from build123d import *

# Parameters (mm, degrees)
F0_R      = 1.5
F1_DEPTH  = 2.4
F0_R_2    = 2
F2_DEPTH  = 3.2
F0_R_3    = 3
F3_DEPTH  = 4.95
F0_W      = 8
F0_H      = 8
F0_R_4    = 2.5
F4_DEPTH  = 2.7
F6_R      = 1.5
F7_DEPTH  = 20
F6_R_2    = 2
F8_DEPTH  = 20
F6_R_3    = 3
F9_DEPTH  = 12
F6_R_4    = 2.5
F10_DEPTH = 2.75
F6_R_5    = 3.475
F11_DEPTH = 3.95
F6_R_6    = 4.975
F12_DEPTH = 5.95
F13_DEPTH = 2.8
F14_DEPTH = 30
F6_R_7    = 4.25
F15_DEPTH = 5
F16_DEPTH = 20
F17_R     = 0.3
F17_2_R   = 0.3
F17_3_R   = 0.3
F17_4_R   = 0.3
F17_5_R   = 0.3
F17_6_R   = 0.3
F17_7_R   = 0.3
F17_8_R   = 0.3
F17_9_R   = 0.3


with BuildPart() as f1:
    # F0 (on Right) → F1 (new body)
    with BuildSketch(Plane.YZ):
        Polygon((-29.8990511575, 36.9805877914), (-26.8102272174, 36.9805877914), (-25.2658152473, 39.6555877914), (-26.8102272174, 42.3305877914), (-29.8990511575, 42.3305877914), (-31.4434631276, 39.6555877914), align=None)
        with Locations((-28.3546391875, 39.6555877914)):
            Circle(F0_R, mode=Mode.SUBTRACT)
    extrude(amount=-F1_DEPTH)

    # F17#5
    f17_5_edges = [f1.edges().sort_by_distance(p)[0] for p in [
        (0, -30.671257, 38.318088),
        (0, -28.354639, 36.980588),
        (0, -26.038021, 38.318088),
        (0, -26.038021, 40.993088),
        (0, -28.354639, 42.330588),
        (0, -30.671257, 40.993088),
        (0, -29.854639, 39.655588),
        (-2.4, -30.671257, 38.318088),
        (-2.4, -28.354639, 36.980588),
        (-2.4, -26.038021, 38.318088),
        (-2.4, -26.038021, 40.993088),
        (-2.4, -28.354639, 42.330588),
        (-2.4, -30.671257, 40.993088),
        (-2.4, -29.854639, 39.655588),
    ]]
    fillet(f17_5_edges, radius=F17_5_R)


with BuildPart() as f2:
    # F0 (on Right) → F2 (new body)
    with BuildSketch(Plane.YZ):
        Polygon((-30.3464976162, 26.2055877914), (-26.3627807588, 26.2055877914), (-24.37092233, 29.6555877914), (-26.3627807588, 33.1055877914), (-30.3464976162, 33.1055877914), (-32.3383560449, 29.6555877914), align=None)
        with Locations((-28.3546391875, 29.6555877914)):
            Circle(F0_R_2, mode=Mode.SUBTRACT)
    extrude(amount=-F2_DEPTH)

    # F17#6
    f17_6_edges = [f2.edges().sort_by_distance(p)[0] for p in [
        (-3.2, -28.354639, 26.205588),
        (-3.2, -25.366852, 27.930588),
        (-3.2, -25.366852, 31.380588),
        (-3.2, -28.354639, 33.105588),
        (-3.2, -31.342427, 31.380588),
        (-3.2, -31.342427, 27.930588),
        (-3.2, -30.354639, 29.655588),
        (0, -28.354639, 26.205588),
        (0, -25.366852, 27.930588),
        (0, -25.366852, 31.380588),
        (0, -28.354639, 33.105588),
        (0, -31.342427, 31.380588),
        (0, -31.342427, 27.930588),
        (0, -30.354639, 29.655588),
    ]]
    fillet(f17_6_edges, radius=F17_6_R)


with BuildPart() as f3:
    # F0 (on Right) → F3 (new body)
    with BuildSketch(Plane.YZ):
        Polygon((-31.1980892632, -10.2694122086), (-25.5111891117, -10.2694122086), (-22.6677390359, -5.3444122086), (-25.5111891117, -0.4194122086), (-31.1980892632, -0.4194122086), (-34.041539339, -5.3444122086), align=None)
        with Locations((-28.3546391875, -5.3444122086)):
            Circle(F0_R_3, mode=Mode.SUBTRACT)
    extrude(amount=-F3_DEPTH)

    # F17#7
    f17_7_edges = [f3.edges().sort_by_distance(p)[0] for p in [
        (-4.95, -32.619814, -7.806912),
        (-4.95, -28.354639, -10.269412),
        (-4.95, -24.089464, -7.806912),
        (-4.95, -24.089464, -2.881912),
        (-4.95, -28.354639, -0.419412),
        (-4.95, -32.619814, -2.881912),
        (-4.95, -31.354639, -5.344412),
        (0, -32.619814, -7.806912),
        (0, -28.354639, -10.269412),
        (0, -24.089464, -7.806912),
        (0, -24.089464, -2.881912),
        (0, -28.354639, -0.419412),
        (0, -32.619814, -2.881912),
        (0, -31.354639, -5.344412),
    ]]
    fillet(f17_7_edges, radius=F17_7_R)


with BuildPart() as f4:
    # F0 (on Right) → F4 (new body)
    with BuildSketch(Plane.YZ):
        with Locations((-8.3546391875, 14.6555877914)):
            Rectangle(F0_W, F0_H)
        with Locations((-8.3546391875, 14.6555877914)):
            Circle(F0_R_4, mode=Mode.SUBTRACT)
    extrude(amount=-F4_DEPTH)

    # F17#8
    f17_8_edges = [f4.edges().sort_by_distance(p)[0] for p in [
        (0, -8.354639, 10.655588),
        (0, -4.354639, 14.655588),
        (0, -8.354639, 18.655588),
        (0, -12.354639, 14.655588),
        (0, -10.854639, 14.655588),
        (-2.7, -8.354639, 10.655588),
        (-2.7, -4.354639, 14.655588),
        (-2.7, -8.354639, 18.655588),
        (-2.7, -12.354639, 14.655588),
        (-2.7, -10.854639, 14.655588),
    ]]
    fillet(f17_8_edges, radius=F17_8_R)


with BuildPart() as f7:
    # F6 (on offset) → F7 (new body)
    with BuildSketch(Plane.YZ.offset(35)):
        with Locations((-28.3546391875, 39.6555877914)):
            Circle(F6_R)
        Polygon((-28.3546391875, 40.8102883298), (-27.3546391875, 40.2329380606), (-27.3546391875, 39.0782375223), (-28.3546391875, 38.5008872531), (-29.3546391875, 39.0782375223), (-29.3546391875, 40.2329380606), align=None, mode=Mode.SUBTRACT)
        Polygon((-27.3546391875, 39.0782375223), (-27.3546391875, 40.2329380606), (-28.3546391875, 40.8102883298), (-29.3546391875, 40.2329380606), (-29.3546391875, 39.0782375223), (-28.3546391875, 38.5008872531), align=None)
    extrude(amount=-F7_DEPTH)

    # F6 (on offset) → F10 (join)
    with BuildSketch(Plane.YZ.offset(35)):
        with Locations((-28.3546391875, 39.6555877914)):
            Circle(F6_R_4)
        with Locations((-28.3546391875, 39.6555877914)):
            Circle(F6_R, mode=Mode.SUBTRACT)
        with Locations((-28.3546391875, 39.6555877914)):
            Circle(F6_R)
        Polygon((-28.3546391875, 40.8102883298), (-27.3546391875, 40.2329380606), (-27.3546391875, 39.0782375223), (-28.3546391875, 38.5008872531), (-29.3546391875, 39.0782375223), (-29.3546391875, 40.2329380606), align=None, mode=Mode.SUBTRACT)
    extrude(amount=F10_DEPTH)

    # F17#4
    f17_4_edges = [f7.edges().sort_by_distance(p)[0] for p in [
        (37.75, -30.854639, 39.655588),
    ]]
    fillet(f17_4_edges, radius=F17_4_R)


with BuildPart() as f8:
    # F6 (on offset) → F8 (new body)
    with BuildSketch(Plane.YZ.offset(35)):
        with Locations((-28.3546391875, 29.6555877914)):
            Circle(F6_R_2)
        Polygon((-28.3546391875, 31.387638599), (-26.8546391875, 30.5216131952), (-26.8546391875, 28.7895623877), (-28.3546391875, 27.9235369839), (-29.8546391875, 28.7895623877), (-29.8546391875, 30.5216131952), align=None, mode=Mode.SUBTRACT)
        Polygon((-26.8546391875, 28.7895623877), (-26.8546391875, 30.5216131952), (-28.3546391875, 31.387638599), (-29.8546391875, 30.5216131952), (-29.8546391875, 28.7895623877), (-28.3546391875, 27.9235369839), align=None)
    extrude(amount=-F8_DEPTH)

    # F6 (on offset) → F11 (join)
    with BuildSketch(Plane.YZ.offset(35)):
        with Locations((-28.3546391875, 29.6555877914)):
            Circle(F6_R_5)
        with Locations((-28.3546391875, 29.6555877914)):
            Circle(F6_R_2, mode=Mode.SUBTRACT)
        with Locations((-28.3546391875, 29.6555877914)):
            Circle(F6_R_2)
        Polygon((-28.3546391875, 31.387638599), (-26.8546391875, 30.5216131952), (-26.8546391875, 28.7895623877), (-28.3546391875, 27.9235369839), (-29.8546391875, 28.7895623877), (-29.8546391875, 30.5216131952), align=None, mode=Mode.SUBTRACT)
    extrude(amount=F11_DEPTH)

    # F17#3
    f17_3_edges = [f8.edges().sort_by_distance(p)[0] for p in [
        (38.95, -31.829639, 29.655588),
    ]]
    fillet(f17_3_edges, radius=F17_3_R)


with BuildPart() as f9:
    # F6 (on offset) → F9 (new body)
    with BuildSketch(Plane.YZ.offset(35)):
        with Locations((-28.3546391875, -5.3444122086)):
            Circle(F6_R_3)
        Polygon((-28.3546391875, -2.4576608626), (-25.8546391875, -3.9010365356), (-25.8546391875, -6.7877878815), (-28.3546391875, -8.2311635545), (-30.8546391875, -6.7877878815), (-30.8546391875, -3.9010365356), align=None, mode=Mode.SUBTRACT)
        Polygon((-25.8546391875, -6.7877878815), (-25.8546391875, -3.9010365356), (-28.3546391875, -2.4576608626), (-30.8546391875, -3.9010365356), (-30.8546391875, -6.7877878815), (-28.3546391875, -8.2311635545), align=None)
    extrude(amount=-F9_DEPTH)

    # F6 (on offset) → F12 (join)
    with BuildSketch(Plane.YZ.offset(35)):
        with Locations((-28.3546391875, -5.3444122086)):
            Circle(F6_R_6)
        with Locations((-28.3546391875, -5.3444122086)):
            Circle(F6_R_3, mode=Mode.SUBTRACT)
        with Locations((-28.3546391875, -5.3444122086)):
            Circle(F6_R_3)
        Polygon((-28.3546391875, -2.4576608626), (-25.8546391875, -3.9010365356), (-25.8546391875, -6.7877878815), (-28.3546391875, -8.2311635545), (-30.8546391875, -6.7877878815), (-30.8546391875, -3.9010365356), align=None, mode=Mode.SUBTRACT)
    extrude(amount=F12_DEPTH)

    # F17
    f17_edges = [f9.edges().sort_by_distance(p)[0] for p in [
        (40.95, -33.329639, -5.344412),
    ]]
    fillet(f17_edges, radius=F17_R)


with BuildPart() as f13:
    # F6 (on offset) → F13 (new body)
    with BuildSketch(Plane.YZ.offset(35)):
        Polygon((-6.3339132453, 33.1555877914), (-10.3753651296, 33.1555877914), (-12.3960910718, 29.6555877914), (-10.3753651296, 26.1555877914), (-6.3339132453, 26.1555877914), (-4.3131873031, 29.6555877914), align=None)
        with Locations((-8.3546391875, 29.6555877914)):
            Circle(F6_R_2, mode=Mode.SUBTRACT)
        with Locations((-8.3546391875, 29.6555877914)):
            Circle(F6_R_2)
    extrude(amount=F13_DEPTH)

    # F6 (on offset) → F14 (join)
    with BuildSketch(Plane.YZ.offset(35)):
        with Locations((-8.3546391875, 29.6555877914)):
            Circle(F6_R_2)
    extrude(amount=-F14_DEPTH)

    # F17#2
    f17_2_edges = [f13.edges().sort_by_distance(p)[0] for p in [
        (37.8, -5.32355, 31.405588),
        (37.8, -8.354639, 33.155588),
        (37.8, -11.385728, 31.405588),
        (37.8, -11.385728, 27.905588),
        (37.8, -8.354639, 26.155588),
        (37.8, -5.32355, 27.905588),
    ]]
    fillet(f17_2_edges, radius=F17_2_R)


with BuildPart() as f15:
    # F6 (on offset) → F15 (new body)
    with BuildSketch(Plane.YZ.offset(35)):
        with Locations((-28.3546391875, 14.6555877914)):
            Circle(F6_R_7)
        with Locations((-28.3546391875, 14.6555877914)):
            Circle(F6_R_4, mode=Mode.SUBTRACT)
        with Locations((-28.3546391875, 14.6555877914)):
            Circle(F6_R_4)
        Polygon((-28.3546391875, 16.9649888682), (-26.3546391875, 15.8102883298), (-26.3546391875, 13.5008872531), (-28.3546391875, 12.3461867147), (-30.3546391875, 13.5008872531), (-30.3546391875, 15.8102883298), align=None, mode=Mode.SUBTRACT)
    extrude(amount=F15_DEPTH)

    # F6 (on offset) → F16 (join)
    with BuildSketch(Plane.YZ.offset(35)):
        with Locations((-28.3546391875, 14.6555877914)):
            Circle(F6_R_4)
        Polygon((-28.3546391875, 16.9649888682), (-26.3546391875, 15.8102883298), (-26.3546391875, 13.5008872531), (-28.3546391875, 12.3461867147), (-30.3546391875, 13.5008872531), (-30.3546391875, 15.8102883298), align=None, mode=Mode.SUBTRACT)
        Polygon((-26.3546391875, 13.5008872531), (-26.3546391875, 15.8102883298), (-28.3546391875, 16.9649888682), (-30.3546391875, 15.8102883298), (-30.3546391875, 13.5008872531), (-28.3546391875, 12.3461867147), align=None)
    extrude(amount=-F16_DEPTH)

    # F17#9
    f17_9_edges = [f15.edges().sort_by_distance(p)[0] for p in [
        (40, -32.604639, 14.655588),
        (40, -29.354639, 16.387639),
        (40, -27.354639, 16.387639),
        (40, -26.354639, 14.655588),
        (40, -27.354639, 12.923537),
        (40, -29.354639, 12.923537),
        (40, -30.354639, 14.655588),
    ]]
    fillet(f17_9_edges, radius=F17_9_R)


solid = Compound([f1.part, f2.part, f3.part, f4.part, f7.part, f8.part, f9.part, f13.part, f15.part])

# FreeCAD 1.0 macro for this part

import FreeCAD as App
import Part
import Sketcher
Q = App.Units.Quantity


def edges_at(feature, points):
    """Names of the edges that pass closest to the given points."""
    edges = feature.Shape.Edges
    near = lambda p: min(range(len(edges)), key=lambda i: edges[i].distToShape(Part.Vertex(*p))[0])
    return sorted({f"Edge{near(p) + 1}" for p in points})


def add_polygon(sketch, points):
    """Adds a closed chain of lines whose ends are joined by coincident constraints."""
    first, n = sketch.GeometryCount, len(points)
    for a, b in zip(points, points[1:] + points[:1]):
        sketch.addGeometry(Part.LineSegment(App.Vector(*a, 0), App.Vector(*b, 0)), False)
    for i in range(n):
        sketch.addConstraint(Sketcher.Constraint("Coincident", first + i, 2, first + (i + 1) % n, 1))

doc = App.newDocument("Part")
body = doc.addObject("PartDesign::Body", "Body")

sketch1 = body.newObject("Sketcher::SketchObject", "Sketch")
sketch1.AttachmentSupport = (doc.getObject("YZ_Plane"), [""])
sketch1.MapMode = "FlatFace"
add_polygon(sketch1, [(-29.9, 37), (-26.8, 37), (-25.3, 39.7), (-26.8, 42.3), (-29.9, 42.3), (-31.4, 39.7)])
sketch1.addGeometry(Part.Circle(App.Vector(-28.4, 39.7, 0), App.Vector(0, 0, 1), 1.5), False)
sketch1.addConstraint([
    Sketcher.Constraint("Horizontal", 0),
    Sketcher.Constraint("Horizontal", 3),
    Sketcher.Constraint("Parallel", 1, 4),
    Sketcher.Constraint("Parallel", 2, 5),
    Sketcher.Constraint("Horizontal", 6, 3, 1, 2),
    Sketcher.Constraint("Horizontal", 1, 2, 4, 2),
    Sketcher.Constraint("Vertical", 0, 2, 2, 2),
    Sketcher.Constraint("Vertical", 3, 2, 5, 2),
    Sketcher.Constraint("Diameter", 6, Q("3 mm")),
    Sketcher.Constraint("Angle", 1, Q("60 deg")),
    Sketcher.Constraint("DistanceY", 0, 2, 2, 2, Q("5.35 mm")),
    Sketcher.Constraint("DistanceX", 0, 1, 0, 2, Q("3.088824 mm")),
    Sketcher.Constraint("DistanceX", 6, 3, -1, 1, Q("28.354639 mm")),
    Sketcher.Constraint("DistanceX", 3, 2, -1, 1, Q("29.899051 mm")),
    Sketcher.Constraint("DistanceY", -1, 1, 6, 3, Q("39.655588 mm")),
])
pad1 = body.newObject("PartDesign::Pad", "Pad")
pad1.Profile = sketch1
pad1.Length = 2.4
pad1.Reversed = True
doc.recompute()

fillet = body.newObject("PartDesign::Fillet", "Fillet")
fillet.Base = (pad1, edges_at(pad1, [
    (0, -30.671, 38.318),
    (0, -28.355, 36.981),
    (0, -26.038, 38.318),
    (0, -26.038, 40.993),
    (0, -28.355, 42.331),
    (0, -30.671, 40.993),
    (0, -29.855, 39.656),
    (-2.4, -30.671, 38.318),
    (-2.4, -28.355, 36.981),
    (-2.4, -26.038, 38.318),
    (-2.4, -26.038, 40.993),
    (-2.4, -28.355, 42.331),
    (-2.4, -30.671, 40.993),
    (-2.4, -29.855, 39.656),
]))
fillet.Radius = 0.3
body2 = doc.addObject("PartDesign::Body", "Body001")

sketch2 = body2.newObject("Sketcher::SketchObject", "Sketch001")
sketch2.AttachmentSupport = (doc.getObject("YZ_Plane001"), [""])
sketch2.MapMode = "FlatFace"
add_polygon(sketch2, [(-30.3, 26.2), (-26.4, 26.2), (-24.4, 29.7), (-26.4, 33.1), (-30.3, 33.1), (-32.3, 29.7)])
sketch2.addGeometry(Part.Circle(App.Vector(-28.4, 29.7, 0), App.Vector(0, 0, 1), 2), False)
sketch2.addConstraint([
    Sketcher.Constraint("Horizontal", 0),
    Sketcher.Constraint("Horizontal", 3),
    Sketcher.Constraint("Parallel", 1, 4),
    Sketcher.Constraint("Parallel", 2, 5),
    Sketcher.Constraint("Horizontal", 6, 3, 1, 2),
    Sketcher.Constraint("Horizontal", 1, 2, 4, 2),
    Sketcher.Constraint("Vertical", 0, 2, 2, 2),
    Sketcher.Constraint("Vertical", 3, 2, 5, 2),
    Sketcher.Constraint("Diameter", 6, Q("4 mm")),
    Sketcher.Constraint("Angle", 1, Q("60 deg")),
    Sketcher.Constraint("DistanceY", 0, 2, 2, 2, Q("6.9 mm")),
    Sketcher.Constraint("DistanceX", 0, 1, 0, 2, Q("3.983717 mm")),
    Sketcher.Constraint("DistanceX", 6, 3, -1, 1, Q("28.354639 mm")),
    Sketcher.Constraint("DistanceX", 0, 2, -1, 1, Q("26.362781 mm")),
    Sketcher.Constraint("DistanceY", -1, 1, 6, 3, Q("29.655588 mm")),
])
pad2 = body2.newObject("PartDesign::Pad", "Pad001")
pad2.Profile = sketch2
pad2.Length = 3.2
pad2.Reversed = True
doc.recompute()

fillet2 = body2.newObject("PartDesign::Fillet", "Fillet001")
fillet2.Base = (pad2, edges_at(pad2, [
    (-3.2, -28.355, 26.206),
    (-3.2, -25.367, 27.931),
    (-3.2, -25.367, 31.381),
    (-3.2, -28.355, 33.106),
    (-3.2, -31.342, 31.381),
    (-3.2, -31.342, 27.931),
    (-3.2, -30.355, 29.656),
    (0, -28.355, 26.206),
    (0, -25.367, 27.931),
    (0, -25.367, 31.381),
    (0, -28.355, 33.106),
    (0, -31.342, 31.381),
    (0, -31.342, 27.931),
    (0, -30.355, 29.656),
]))
fillet2.Radius = 0.3
body3 = doc.addObject("PartDesign::Body", "Body002")

sketch3 = body3.newObject("Sketcher::SketchObject", "Sketch002")
sketch3.AttachmentSupport = (doc.getObject("YZ_Plane002"), [""])
sketch3.MapMode = "FlatFace"
add_polygon(sketch3, [(-31.2, -10.3), (-25.5, -10.3), (-22.7, -5.3), (-25.5, -0.4), (-31.2, -0.4), (-34, -5.3)])
sketch3.addGeometry(Part.Circle(App.Vector(-28.4, -5.3, 0), App.Vector(0, 0, 1), 3), False)
sketch3.addConstraint([
    Sketcher.Constraint("Horizontal", 0),
    Sketcher.Constraint("Horizontal", 3),
    Sketcher.Constraint("Parallel", 1, 4),
    Sketcher.Constraint("Parallel", 2, 5),
    Sketcher.Constraint("Horizontal", 6, 3, 1, 2),
    Sketcher.Constraint("Horizontal", 1, 2, 4, 2),
    Sketcher.Constraint("Vertical", 0, 2, 2, 2),
    Sketcher.Constraint("Vertical", 3, 2, 5, 2),
    Sketcher.Constraint("Diameter", 6, Q("6 mm")),
    Sketcher.Constraint("Angle", 1, Q("60 deg")),
    Sketcher.Constraint("DistanceY", 0, 2, 2, 2, Q("9.85 mm")),
    Sketcher.Constraint("DistanceX", 0, 1, 0, 2, Q("5.6869 mm")),
    Sketcher.Constraint("DistanceX", 6, 3, 1, 2, Q("5.6869 mm")),
    Sketcher.Constraint("DistanceX", 6, 3, -1, 1, Q("28.354639 mm")),
    Sketcher.Constraint("DistanceY", 6, 3, -1, 1, Q("5.344412 mm")),
])
pad3 = body3.newObject("PartDesign::Pad", "Pad002")
pad3.Profile = sketch3
pad3.Length = 4.95
pad3.Reversed = True
doc.recompute()

fillet3 = body3.newObject("PartDesign::Fillet", "Fillet002")
fillet3.Base = (pad3, edges_at(pad3, [
    (-4.95, -32.62, -7.807),
    (-4.95, -28.355, -10.269),
    (-4.95, -24.089, -7.807),
    (-4.95, -24.089, -2.882),
    (-4.95, -28.355, -0.419),
    (-4.95, -32.62, -2.882),
    (-4.95, -31.355, -5.344),
    (0, -32.62, -7.807),
    (0, -28.355, -10.269),
    (0, -24.089, -7.807),
    (0, -24.089, -2.882),
    (0, -28.355, -0.419),
    (0, -32.62, -2.882),
    (0, -31.355, -5.344),
]))
fillet3.Radius = 0.3
body4 = doc.addObject("PartDesign::Body", "Body003")

sketch4 = body4.newObject("Sketcher::SketchObject", "Sketch003")
sketch4.AttachmentSupport = (doc.getObject("YZ_Plane003"), [""])
sketch4.MapMode = "FlatFace"
add_polygon(sketch4, [(-12.4, 18.7), (-12.4, 10.7), (-4.4, 10.7), (-4.4, 18.7)])
sketch4.addGeometry(Part.Circle(App.Vector(-8.4, 14.7, 0), App.Vector(0, 0, 1), 2.5), False)
sketch4.addConstraint([
    Sketcher.Constraint("Vertical", 0),
    Sketcher.Constraint("Horizontal", 1),
    Sketcher.Constraint("Vertical", 2),
    Sketcher.Constraint("Horizontal", 3),
    Sketcher.Constraint("Equal", 3, 0),
    Sketcher.Constraint("Diameter", 4, Q("5 mm")),
    Sketcher.Constraint("DistanceX", 1, 1, 1, 2, Q("8 mm")),
    Sketcher.Constraint("DistanceX", 0, 2, 4, 3, Q("4 mm")),
    Sketcher.Constraint("DistanceY", 0, 2, 4, 3, Q("4 mm")),
    Sketcher.Constraint("DistanceX", 4, 3, -1, 1, Q("8.354639 mm")),
    Sketcher.Constraint("DistanceY", -1, 1, 4, 3, Q("14.655588 mm")),
])
pad4 = body4.newObject("PartDesign::Pad", "Pad003")
pad4.Profile = sketch4
pad4.Length = 2.7
pad4.Reversed = True
doc.recompute()

fillet4 = body4.newObject("PartDesign::Fillet", "Fillet003")
fillet4.Base = (pad4, edges_at(pad4, [
    (0, -8.355, 10.656),
    (0, -4.355, 14.656),
    (0, -8.355, 18.656),
    (0, -12.355, 14.656),
    (0, -10.855, 14.656),
    (-2.7, -8.355, 10.656),
    (-2.7, -4.355, 14.656),
    (-2.7, -8.355, 18.656),
    (-2.7, -12.355, 14.656),
    (-2.7, -10.855, 14.656),
]))
fillet4.Radius = 0.3
body5 = doc.addObject("PartDesign::Body", "Body004")

sketch5 = body5.newObject("Sketcher::SketchObject", "Sketch004")
sketch5.AttachmentSupport = (doc.getObject("YZ_Plane004"), [""])
sketch5.MapMode = "FlatFace"
sketch5.AttachmentOffset = App.Placement(App.Vector(0, 0, 35), App.Rotation())
sketch5.addGeometry(Part.Circle(App.Vector(-28.4, 39.7, 0), App.Vector(0, 0, 1), 1.5), False)
sketch5.addConstraint([
    Sketcher.Constraint("Diameter", 0, Q("3 mm")),
    Sketcher.Constraint("DistanceX", 0, 3, -1, 1, Q("28.354639 mm")),
    Sketcher.Constraint("DistanceY", -1, 1, 0, 3, Q("39.655588 mm")),
])
pad5 = body5.newObject("PartDesign::Pad", "Pad004")
pad5.Profile = sketch5
pad5.Length = 20
pad5.Reversed = True

sketch6 = body5.newObject("Sketcher::SketchObject", "Sketch005")
sketch6.AttachmentSupport = (doc.getObject("YZ_Plane004"), [""])
sketch6.MapMode = "FlatFace"
sketch6.AttachmentOffset = App.Placement(App.Vector(0, 0, 35), App.Rotation())
sketch6.addGeometry(Part.Circle(App.Vector(-28.4, 39.7, 0), App.Vector(0, 0, 1), 2.5), False)
add_polygon(sketch6, [(-29.4, 40.2), (-28.4, 40.8), (-27.4, 40.2), (-27.4, 39.1), (-28.4, 38.5), (-29.4, 39.1)])
sketch6.addConstraint([
    Sketcher.Constraint("Vertical", 3),
    Sketcher.Constraint("Vertical", 6),
    Sketcher.Constraint("Parallel", 1, 4),
    Sketcher.Constraint("Parallel", 2, 5),
    Sketcher.Constraint("Horizontal", 3, 2, 5, 2),
    Sketcher.Constraint("Horizontal", 2, 2, 6, 2),
    Sketcher.Constraint("Vertical", 0, 3, 1, 2),
    Sketcher.Constraint("Vertical", 1, 2, 4, 2),
    Sketcher.Constraint("Diameter", 0, Q("5 mm")),
    Sketcher.Constraint("Angle", 1, Q("30 deg")),
    Sketcher.Constraint("DistanceX", 1, 2, 2, 2, Q("1 mm")),
    Sketcher.Constraint("DistanceY", 3, 2, 3, 1, Q("1.154701 mm")),
    Sketcher.Constraint("DistanceY", 0, 3, 1, 2, Q("1.154701 mm")),
    Sketcher.Constraint("DistanceX", 0, 3, -1, 1, Q("28.354639 mm")),
    Sketcher.Constraint("DistanceY", -1, 1, 1, 2, Q("40.810288 mm")),
])
pad6 = body5.newObject("PartDesign::Pad", "Pad005")
pad6.Profile = sketch6
pad6.Length = 2.75
doc.recompute()

fillet5 = body5.newObject("PartDesign::Fillet", "Fillet004")
fillet5.Base = (pad6, edges_at(pad6, [(37.75, -30.855, 39.656)]))
fillet5.Radius = 0.3
body6 = doc.addObject("PartDesign::Body", "Body005")

sketch7 = body6.newObject("Sketcher::SketchObject", "Sketch006")
sketch7.AttachmentSupport = (doc.getObject("YZ_Plane005"), [""])
sketch7.MapMode = "FlatFace"
sketch7.AttachmentOffset = App.Placement(App.Vector(0, 0, 35), App.Rotation())
sketch7.addGeometry(Part.Circle(App.Vector(-28.4, 29.7, 0), App.Vector(0, 0, 1), 2), False)
sketch7.addConstraint([
    Sketcher.Constraint("Diameter", 0, Q("4 mm")),
    Sketcher.Constraint("DistanceX", 0, 3, -1, 1, Q("28.354639 mm")),
    Sketcher.Constraint("DistanceY", -1, 1, 0, 3, Q("29.655588 mm")),
])
pad7 = body6.newObject("PartDesign::Pad", "Pad006")
pad7.Profile = sketch7
pad7.Length = 20
pad7.Reversed = True

sketch8 = body6.newObject("Sketcher::SketchObject", "Sketch007")
sketch8.AttachmentSupport = (doc.getObject("YZ_Plane005"), [""])
sketch8.MapMode = "FlatFace"
sketch8.AttachmentOffset = App.Placement(App.Vector(0, 0, 35), App.Rotation())
sketch8.addGeometry(Part.Circle(App.Vector(-28.4, 29.7, 0), App.Vector(0, 0, 1), 3.5), False)
add_polygon(sketch8, [(-29.9, 30.5), (-28.4, 31.4), (-26.9, 30.5), (-26.9, 28.8), (-28.4, 27.9), (-29.9, 28.8)])
sketch8.addConstraint([
    Sketcher.Constraint("Vertical", 3),
    Sketcher.Constraint("Vertical", 6),
    Sketcher.Constraint("Parallel", 1, 4),
    Sketcher.Constraint("Parallel", 2, 5),
    Sketcher.Constraint("Horizontal", 3, 2, 5, 2),
    Sketcher.Constraint("Horizontal", 2, 2, 6, 2),
    Sketcher.Constraint("Vertical", 0, 3, 1, 2),
    Sketcher.Constraint("Vertical", 1, 2, 4, 2),
    Sketcher.Constraint("Diameter", 0, Q("6.95 mm")),
    Sketcher.Constraint("Angle", 1, Q("30 deg")),
    Sketcher.Constraint("DistanceX", 5, 2, 3, 2, Q("3 mm")),
    Sketcher.Constraint("DistanceY", 3, 2, 3, 1, Q("1.732051 mm")),
    Sketcher.Constraint("DistanceX", 0, 3, -1, 1, Q("28.354639 mm")),
    Sketcher.Constraint("DistanceY", -1, 1, 1, 2, Q("31.387639 mm")),
    Sketcher.Constraint("DistanceY", 0, 3, 1, 2, Q("1.732051 mm")),
])
pad8 = body6.newObject("PartDesign::Pad", "Pad007")
pad8.Profile = sketch8
pad8.Length = 3.95
doc.recompute()

fillet6 = body6.newObject("PartDesign::Fillet", "Fillet005")
fillet6.Base = (pad8, edges_at(pad8, [(38.95, -31.83, 29.656)]))
fillet6.Radius = 0.3
body7 = doc.addObject("PartDesign::Body", "Body006")

sketch9 = body7.newObject("Sketcher::SketchObject", "Sketch008")
sketch9.AttachmentSupport = (doc.getObject("YZ_Plane006"), [""])
sketch9.MapMode = "FlatFace"
sketch9.AttachmentOffset = App.Placement(App.Vector(0, 0, 35), App.Rotation())
sketch9.addGeometry(Part.Circle(App.Vector(-28.4, -5.3, 0), App.Vector(0, 0, 1), 3), False)
sketch9.addConstraint([
    Sketcher.Constraint("Diameter", 0, Q("6 mm")),
    Sketcher.Constraint("DistanceX", 0, 3, -1, 1, Q("28.354639 mm")),
    Sketcher.Constraint("DistanceY", 0, 3, -1, 1, Q("5.344412 mm")),
])
pad9 = body7.newObject("PartDesign::Pad", "Pad008")
pad9.Profile = sketch9
pad9.Length = 12
pad9.Reversed = True

sketch10 = body7.newObject("Sketcher::SketchObject", "Sketch009")
sketch10.AttachmentSupport = (doc.getObject("YZ_Plane006"), [""])
sketch10.MapMode = "FlatFace"
sketch10.AttachmentOffset = App.Placement(App.Vector(0, 0, 35), App.Rotation())
sketch10.addGeometry(Part.Circle(App.Vector(-28.4, -5.3, 0), App.Vector(0, 0, 1), 5), False)
add_polygon(sketch10, [(-30.9, -3.9), (-28.4, -2.5), (-25.9, -3.9), (-25.9, -6.8), (-28.4, -8.2), (-30.9, -6.8)])
sketch10.addConstraint([
    Sketcher.Constraint("Vertical", 3),
    Sketcher.Constraint("Vertical", 6),
    Sketcher.Constraint("Parallel", 1, 4),
    Sketcher.Constraint("Parallel", 2, 5),
    Sketcher.Constraint("Horizontal", 3, 2, 5, 2),
    Sketcher.Constraint("Horizontal", 2, 2, 6, 2),
    Sketcher.Constraint("Vertical", 0, 3, 1, 2),
    Sketcher.Constraint("Vertical", 1, 2, 4, 2),
    Sketcher.Constraint("Diameter", 0, Q("9.95 mm")),
    Sketcher.Constraint("Angle", 1, Q("30 deg")),
    Sketcher.Constraint("DistanceX", 5, 2, 3, 2, Q("5 mm")),
    Sketcher.Constraint("DistanceY", 3, 2, 3, 1, Q("2.886751 mm")),
    Sketcher.Constraint("DistanceX", 0, 3, -1, 1, Q("28.354639 mm")),
    Sketcher.Constraint("DistanceY", 1, 2, -1, 1, Q("2.457661 mm")),
    Sketcher.Constraint("DistanceY", 0, 3, 1, 2, Q("2.886751 mm")),
])
pad10 = body7.newObject("PartDesign::Pad", "Pad009")
pad10.Profile = sketch10
pad10.Length = 5.95
doc.recompute()

fillet7 = body7.newObject("PartDesign::Fillet", "Fillet006")
fillet7.Base = (pad10, edges_at(pad10, [(40.95, -33.33, -5.344)]))
fillet7.Radius = 0.3
body8 = doc.addObject("PartDesign::Body", "Body007")

sketch11 = body8.newObject("Sketcher::SketchObject", "Sketch010")
sketch11.AttachmentSupport = (doc.getObject("YZ_Plane007"), [""])
sketch11.MapMode = "FlatFace"
sketch11.AttachmentOffset = App.Placement(App.Vector(0, 0, 35), App.Rotation())
add_polygon(sketch11, [(-6.3, 33.2), (-10.4, 33.2), (-12.4, 29.7), (-10.4, 26.2), (-6.3, 26.2), (-4.3, 29.7)])
sketch11.addConstraint([
    Sketcher.Constraint("Horizontal", 0),
    Sketcher.Constraint("Horizontal", 3),
    Sketcher.Constraint("Parallel", 1, 4),
    Sketcher.Constraint("Parallel", 2, 5),
    Sketcher.Constraint("Horizontal", 1, 2, 4, 2),
    Sketcher.Constraint("Vertical", 0, 2, 2, 2),
    Sketcher.Constraint("Vertical", 3, 2, 5, 2),
    Sketcher.Constraint("Angle", 1, Q("-120 deg")),
    Sketcher.Constraint("DistanceY", 2, 2, 0, 2, Q("7 mm")),
    Sketcher.Constraint("DistanceX", 0, 2, 0, 1, Q("4.041452 mm")),
    Sketcher.Constraint("DistanceX", 1, 2, -1, 1, Q("12.396091 mm")),
    Sketcher.Constraint("DistanceY", -1, 1, 0, 2, Q("33.155588 mm")),
])
pad11 = body8.newObject("PartDesign::Pad", "Pad010")
pad11.Profile = sketch11
pad11.Length = 2.8

sketch12 = body8.newObject("Sketcher::SketchObject", "Sketch011")
sketch12.AttachmentSupport = (doc.getObject("YZ_Plane007"), [""])
sketch12.MapMode = "FlatFace"
sketch12.AttachmentOffset = App.Placement(App.Vector(0, 0, 35), App.Rotation())
sketch12.addGeometry(Part.Circle(App.Vector(-8.4, 29.7, 0), App.Vector(0, 0, 1), 2), False)
sketch12.addConstraint([
    Sketcher.Constraint("Diameter", 0, Q("4 mm")),
    Sketcher.Constraint("DistanceX", 0, 3, -1, 1, Q("8.354639 mm")),
    Sketcher.Constraint("DistanceY", -1, 1, 0, 3, Q("29.655588 mm")),
])
pad12 = body8.newObject("PartDesign::Pad", "Pad011")
pad12.Profile = sketch12
pad12.Length = 30
pad12.Reversed = True
doc.recompute()

fillet8 = body8.newObject("PartDesign::Fillet", "Fillet007")
fillet8.Base = (pad12, edges_at(pad12, [
    (37.8, -5.324, 31.406),
    (37.8, -8.355, 33.156),
    (37.8, -11.386, 31.406),
    (37.8, -11.386, 27.906),
    (37.8, -8.355, 26.156),
    (37.8, -5.324, 27.906),
]))
fillet8.Radius = 0.3
body9 = doc.addObject("PartDesign::Body", "Body008")

sketch13 = body9.newObject("Sketcher::SketchObject", "Sketch012")
sketch13.AttachmentSupport = (doc.getObject("YZ_Plane008"), [""])
sketch13.MapMode = "FlatFace"
sketch13.AttachmentOffset = App.Placement(App.Vector(0, 0, 35), App.Rotation())
sketch13.addGeometry(Part.Circle(App.Vector(-28.4, 14.7, 0), App.Vector(0, 0, 1), 4.2), False)
add_polygon(sketch13, [(-30.4, 15.8), (-28.4, 17), (-26.4, 15.8), (-26.4, 13.5), (-28.4, 12.3), (-30.4, 13.5)])
sketch13.addConstraint([
    Sketcher.Constraint("Vertical", 3),
    Sketcher.Constraint("Vertical", 6),
    Sketcher.Constraint("Parallel", 1, 4),
    Sketcher.Constraint("Parallel", 2, 5),
    Sketcher.Constraint("Horizontal", 3, 2, 5, 2),
    Sketcher.Constraint("Horizontal", 2, 2, 6, 2),
    Sketcher.Constraint("Vertical", 0, 3, 1, 2),
    Sketcher.Constraint("Vertical", 1, 2, 4, 2),
    Sketcher.Constraint("Diameter", 0, Q("8.5 mm")),
    Sketcher.Constraint("Angle", 1, Q("30 deg")),
    Sketcher.Constraint("DistanceX", 1, 2, 2, 2, Q("2 mm")),
    Sketcher.Constraint("DistanceY", 3, 2, 3, 1, Q("2.309401 mm")),
    Sketcher.Constraint("DistanceY", 0, 3, 1, 2, Q("2.309401 mm")),
    Sketcher.Constraint("DistanceX", 0, 3, -1, 1, Q("28.354639 mm")),
    Sketcher.Constraint("DistanceY", -1, 1, 1, 2, Q("16.964989 mm")),
])
pad13 = body9.newObject("PartDesign::Pad", "Pad012")
pad13.Profile = sketch13
pad13.Length = 5

sketch14 = body9.newObject("Sketcher::SketchObject", "Sketch013")
sketch14.AttachmentSupport = (doc.getObject("YZ_Plane008"), [""])
sketch14.MapMode = "FlatFace"
sketch14.AttachmentOffset = App.Placement(App.Vector(0, 0, 35), App.Rotation())
sketch14.addGeometry(Part.Circle(App.Vector(-28.4, 14.7, 0), App.Vector(0, 0, 1), 2.5), False)
sketch14.addConstraint([
    Sketcher.Constraint("Diameter", 0, Q("5 mm")),
    Sketcher.Constraint("DistanceX", 0, 3, -1, 1, Q("28.354639 mm")),
    Sketcher.Constraint("DistanceY", -1, 1, 0, 3, Q("14.655588 mm")),
])
pad14 = body9.newObject("PartDesign::Pad", "Pad013")
pad14.Profile = sketch14
pad14.Length = 20
pad14.Reversed = True
doc.recompute()

fillet9 = body9.newObject("PartDesign::Fillet", "Fillet008")
fillet9.Base = (pad14, edges_at(pad14, [
    (40, -32.605, 14.656),
    (40, -29.355, 16.388),
    (40, -27.355, 16.388),
    (40, -26.355, 14.656),
    (40, -27.355, 12.924),
    (40, -29.355, 12.924),
    (40, -30.355, 14.656),
]))
fillet9.Radius = 0.3

doc.recompute()
